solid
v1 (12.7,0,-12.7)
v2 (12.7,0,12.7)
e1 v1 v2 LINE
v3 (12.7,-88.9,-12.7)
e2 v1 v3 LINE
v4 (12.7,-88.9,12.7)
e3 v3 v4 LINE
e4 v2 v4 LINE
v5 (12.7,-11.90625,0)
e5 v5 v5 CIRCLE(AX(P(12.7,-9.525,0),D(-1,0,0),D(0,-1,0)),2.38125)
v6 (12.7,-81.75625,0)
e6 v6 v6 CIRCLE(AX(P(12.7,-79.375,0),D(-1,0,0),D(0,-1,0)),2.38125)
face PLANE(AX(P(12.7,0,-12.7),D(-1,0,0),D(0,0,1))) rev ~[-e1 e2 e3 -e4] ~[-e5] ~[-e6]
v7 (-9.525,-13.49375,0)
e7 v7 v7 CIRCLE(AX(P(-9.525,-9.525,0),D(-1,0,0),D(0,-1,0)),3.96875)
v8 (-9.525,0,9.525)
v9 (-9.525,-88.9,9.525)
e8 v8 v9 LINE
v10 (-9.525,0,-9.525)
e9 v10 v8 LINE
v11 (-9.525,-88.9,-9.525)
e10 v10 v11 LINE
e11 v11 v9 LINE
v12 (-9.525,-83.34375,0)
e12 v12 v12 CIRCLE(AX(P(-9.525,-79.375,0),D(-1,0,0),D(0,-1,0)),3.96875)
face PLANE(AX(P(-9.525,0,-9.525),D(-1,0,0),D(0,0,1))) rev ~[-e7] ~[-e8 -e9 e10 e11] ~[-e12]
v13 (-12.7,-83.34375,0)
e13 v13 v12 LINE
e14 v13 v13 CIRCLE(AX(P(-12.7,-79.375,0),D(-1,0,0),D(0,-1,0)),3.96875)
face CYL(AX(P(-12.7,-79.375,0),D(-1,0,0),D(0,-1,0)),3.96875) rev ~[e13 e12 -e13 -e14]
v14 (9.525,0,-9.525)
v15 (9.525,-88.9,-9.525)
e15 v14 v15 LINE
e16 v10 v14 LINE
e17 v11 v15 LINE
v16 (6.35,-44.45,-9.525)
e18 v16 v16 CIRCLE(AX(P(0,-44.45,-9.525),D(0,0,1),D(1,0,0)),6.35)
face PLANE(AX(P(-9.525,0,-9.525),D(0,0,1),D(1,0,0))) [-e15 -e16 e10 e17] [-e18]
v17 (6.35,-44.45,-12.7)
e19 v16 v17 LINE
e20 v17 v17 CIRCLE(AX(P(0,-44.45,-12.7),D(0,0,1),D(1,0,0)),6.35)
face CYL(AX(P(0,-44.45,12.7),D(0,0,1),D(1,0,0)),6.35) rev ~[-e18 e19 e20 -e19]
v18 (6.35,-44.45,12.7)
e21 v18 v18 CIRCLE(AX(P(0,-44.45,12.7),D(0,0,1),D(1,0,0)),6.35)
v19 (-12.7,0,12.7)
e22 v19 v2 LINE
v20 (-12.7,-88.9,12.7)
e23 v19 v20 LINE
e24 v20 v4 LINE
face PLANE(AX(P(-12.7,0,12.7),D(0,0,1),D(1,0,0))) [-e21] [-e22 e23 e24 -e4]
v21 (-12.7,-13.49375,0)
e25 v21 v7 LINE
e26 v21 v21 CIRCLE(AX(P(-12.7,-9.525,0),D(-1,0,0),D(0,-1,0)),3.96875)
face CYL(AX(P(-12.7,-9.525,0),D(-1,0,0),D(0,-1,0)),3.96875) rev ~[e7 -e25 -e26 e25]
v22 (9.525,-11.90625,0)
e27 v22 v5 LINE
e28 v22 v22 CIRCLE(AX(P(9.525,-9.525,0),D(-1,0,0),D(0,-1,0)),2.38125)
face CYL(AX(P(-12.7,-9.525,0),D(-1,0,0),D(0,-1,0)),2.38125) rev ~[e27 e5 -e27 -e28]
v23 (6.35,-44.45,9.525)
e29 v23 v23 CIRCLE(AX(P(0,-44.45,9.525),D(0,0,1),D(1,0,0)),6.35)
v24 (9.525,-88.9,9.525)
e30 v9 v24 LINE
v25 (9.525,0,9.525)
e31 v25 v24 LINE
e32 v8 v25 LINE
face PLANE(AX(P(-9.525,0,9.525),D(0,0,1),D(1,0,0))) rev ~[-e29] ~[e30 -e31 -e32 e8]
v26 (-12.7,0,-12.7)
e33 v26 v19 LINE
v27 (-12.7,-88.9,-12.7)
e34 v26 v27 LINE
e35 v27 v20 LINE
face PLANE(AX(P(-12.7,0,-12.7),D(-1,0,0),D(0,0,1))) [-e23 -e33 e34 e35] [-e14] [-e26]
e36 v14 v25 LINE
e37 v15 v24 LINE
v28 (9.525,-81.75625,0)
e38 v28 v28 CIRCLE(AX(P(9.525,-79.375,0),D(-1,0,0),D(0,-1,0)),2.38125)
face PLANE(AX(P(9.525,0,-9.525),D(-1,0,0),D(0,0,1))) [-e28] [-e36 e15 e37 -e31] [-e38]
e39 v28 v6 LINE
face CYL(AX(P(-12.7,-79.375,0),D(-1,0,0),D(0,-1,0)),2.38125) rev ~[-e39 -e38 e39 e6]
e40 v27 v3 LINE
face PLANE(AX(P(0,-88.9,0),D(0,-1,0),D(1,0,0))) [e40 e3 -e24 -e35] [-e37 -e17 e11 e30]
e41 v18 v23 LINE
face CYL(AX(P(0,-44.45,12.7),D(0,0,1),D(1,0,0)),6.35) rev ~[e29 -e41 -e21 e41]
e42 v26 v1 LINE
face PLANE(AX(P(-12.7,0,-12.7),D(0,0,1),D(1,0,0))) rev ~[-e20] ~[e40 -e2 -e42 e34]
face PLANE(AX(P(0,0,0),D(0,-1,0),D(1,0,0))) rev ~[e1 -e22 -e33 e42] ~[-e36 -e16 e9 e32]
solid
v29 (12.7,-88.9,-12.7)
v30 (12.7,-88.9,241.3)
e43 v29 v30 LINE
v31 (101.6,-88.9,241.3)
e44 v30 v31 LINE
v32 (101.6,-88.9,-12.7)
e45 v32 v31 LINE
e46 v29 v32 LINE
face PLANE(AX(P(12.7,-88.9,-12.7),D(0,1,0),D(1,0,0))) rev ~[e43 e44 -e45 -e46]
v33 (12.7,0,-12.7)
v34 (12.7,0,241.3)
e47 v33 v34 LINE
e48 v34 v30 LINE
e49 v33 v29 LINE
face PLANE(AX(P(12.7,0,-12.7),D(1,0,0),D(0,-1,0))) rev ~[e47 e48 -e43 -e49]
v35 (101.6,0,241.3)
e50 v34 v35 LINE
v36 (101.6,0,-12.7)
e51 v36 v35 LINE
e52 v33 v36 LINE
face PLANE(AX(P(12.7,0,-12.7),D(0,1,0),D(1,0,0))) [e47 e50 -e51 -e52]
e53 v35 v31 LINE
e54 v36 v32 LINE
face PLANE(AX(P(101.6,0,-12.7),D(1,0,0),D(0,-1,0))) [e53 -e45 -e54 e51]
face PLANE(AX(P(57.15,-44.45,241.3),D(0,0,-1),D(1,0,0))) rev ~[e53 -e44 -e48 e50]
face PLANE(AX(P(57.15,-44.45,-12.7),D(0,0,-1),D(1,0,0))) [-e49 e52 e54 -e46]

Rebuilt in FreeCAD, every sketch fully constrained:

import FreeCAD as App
import Part
import Sketcher
Q = App.Units.Quantity


def add_polygon(sketch, points):
    """Adds a closed chain of lines whose ends are joined by coincident constraints."""
    first, n = sketch.GeometryCount, len(points)
    for a, b in zip(points, points[1:] + points[:1]):
        sketch.addGeometry(Part.LineSegment(App.Vector(*a, 0), App.Vector(*b, 0)), False)
    for i in range(n):
        sketch.addConstraint(Sketcher.Constraint("Coincident", first + i, 2, first + (i + 1) % n, 1))

doc = App.newDocument("Part")
body = doc.addObject("PartDesign::Body", "Body")

# Sketch on XZ plane
sketch1 = body.newObject("Sketcher::SketchObject", "Sketch")
sketch1.AttachmentSupport = (doc.getObject("XZ_Plane"), [""])
sketch1.MapMode = "FlatFace"
add_polygon(sketch1, [(-13, 13), (-13, -13), (13, -13), (13, 13)])  # lines 0-3
add_polygon(sketch1, [(10, -10), (-10, -10), (-10, 10), (10, 10)])  # lines 4-7
sketch1.addConstraint([
    Sketcher.Constraint("Vertical", 0),
    Sketcher.Constraint("Horizontal", 1),
    Sketcher.Constraint("Vertical", 2),
    Sketcher.Constraint("Horizontal", 3),
    Sketcher.Constraint("Horizontal", 4),
    Sketcher.Constraint("Vertical", 5),
    Sketcher.Constraint("Horizontal", 6),
    Sketcher.Constraint("Vertical", 7),
    Sketcher.Constraint("Symmetric", 0, 2, 2, 2, -1, 1),
    Sketcher.Constraint("Symmetric", 4, 2, 6, 2, -1, 1),
    Sketcher.Constraint("Equal", 3, 0),
    Sketcher.Constraint("Equal", 6, 5),
    Sketcher.Constraint("DistanceX", 1, 1, 1, 2, Q("1 in")),
    Sketcher.Constraint("DistanceX", 4, 2, 4, 1, Q("0.75 in")),
])
pad1 = body.newObject("PartDesign::Pad", "Pad")
pad1.Profile = sketch1
pad1.Length = Q("3.5 in")

# Sketch on XY plane
sketch2 = body.newObject("Sketcher::SketchObject", "Sketch001")
sketch2.AttachmentSupport = (doc.getObject("XY_Plane"), [""])
sketch2.MapMode = "FlatFace"
sketch2.AttachmentOffset = App.Placement(App.Vector(0, 0, 0.5 * 25.4), App.Rotation())
sketch2.addGeometry(Part.Circle(App.Vector(0, -44, 0), App.Vector(0, 0, 1), 6), False)
sketch2.addConstraint([
    Sketcher.Constraint("PointOnObject", 0, 3, -2),
    Sketcher.Constraint("Diameter", 0, Q("0.5 in")),
    Sketcher.Constraint("DistanceY", 0, 3, -1, 1, Q("1.75 in")),
])
pocket1 = body.newObject("PartDesign::Pocket", "Pocket")
pocket1.Profile = sketch2
pocket1.Type = "ThroughAll"

# Sketch on YZ plane
sketch3 = body.newObject("Sketcher::SketchObject", "Sketch002")
sketch3.AttachmentSupport = (doc.getObject("YZ_Plane"), [""])
sketch3.MapMode = "FlatFace"
sketch3.AttachmentOffset = App.Placement(App.Vector(0, 0, -0.5 * 25.4), App.Rotation())
sketch3.addGeometry([
    Part.Circle(App.Vector(-9.5, 0, 0), App.Vector(0, 0, 1), 2.4),
    Part.Circle(App.Vector(-79.4, 0, 0), App.Vector(0, 0, 1), 2.4),
], False)
sketch3.addConstraint([
    Sketcher.Constraint("Equal", 0, 1),
    Sketcher.Constraint("PointOnObject", 0, 3, -1),
    Sketcher.Constraint("PointOnObject", 1, 3, -1),
    Sketcher.Constraint("Diameter", 0, Q("0.1875 in")),
    Sketcher.Constraint("DistanceX", 1, 3, 0, 3, Q("2.75 in")),
    Sketcher.Constraint("DistanceX", 0, 3, -1, 1, Q("0.375 in")),
])
pocket2 = body.newObject("PartDesign::Pocket", "Pocket001")
pocket2.Profile = sketch3
pocket2.Type = "ThroughAll"
pocket2.Reversed = True

# Sketch on YZ plane
sketch4 = body.newObject("Sketcher::SketchObject", "Sketch003")
sketch4.AttachmentSupport = (doc.getObject("YZ_Plane"), [""])
sketch4.MapMode = "FlatFace"
sketch4.AttachmentOffset = App.Placement(App.Vector(0, 0, -0.5 * 25.4), App.Rotation())
sketch4.addGeometry([
    Part.Circle(App.Vector(-9.5, 0, 0), App.Vector(0, 0, 1), 4),
    Part.Circle(App.Vector(-79.4, 0, 0), App.Vector(0, 0, 1), 4),
], False)
sketch4.addConstraint([
    Sketcher.Constraint("Equal", 0, 1),
    Sketcher.Constraint("PointOnObject", 0, 3, -1),
    Sketcher.Constraint("PointOnObject", 1, 3, -1),
    Sketcher.Constraint("Diameter", 0, Q("0.3125 in")),
    Sketcher.Constraint("DistanceX", 1, 3, 0, 3, Q("2.75 in")),
    Sketcher.Constraint("DistanceX", 0, 3, -1, 1, Q("0.375 in")),
])
pocket3 = body.newObject("PartDesign::Pocket", "Pocket002")
pocket3.Profile = sketch4
pocket3.Length = Q("0.125 in")
pocket3.Reversed = True
body2 = doc.addObject("PartDesign::Body", "Body001")

# Sketch on XY plane
sketch5 = body2.newObject("Sketcher::SketchObject", "Sketch004")
sketch5.AttachmentSupport = (doc.getObject("XY_Plane001"), [""])
sketch5.MapMode = "FlatFace"
sketch5.AttachmentOffset = App.Placement(App.Vector(0, 0, -0.5 * 25.4), App.Rotation())
add_polygon(sketch5, [(13, -89), (13, 0), (102, 0), (102, -89)])  # lines 0-3
sketch5.addConstraint([
    Sketcher.Constraint("Vertical", 0),
    Sketcher.Constraint("Horizontal", 1),
    Sketcher.Constraint("Vertical", 2),
    Sketcher.Constraint("Horizontal", 3),
    Sketcher.Constraint("PointOnObject", 0, 2, -1),
    Sketcher.Constraint("Equal", 3, 0),
    Sketcher.Constraint("DistanceX", 1, 1, 1, 2, Q("3.5 in")),
    Sketcher.Constraint("DistanceX", -1, 1, 1, 2, Q("4 in")),
])
pad2 = body2.newObject("PartDesign::Pad", "Pad001")
pad2.Profile = sketch5
pad2.Length = Q("10 in")

doc.recompute()
